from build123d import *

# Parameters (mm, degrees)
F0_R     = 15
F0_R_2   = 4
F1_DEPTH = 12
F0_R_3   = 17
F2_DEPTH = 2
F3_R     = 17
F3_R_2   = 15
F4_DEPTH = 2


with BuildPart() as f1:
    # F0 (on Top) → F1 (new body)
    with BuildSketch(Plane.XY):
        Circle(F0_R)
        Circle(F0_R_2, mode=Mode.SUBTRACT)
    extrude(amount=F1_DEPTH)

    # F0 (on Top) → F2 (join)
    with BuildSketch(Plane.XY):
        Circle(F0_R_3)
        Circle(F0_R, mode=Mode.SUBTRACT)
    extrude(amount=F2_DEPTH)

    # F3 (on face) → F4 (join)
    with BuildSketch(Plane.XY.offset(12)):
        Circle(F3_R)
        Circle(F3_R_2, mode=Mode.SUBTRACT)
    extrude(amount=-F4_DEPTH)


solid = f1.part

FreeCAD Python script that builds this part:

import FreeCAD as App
import Part
import Sketcher

V = App.Vector
Q = App.Units.Quantity

doc = App.newDocument("Part")
params = doc.addObject("Spreadsheet::Sheet", "Params")
for row, (alias, value) in enumerate([
    ("sketch1_diameter", "30 mm"),
    ("sketch1_diameter2", "8 mm"),
    ("pad1_length", "12 mm"),
    ("sketch2_diameter", "34 mm"),
    ("sketch2_diameter2", "30 mm"),
    ("pad2_length", "2 mm"),
    ("sketch3_diameter", "34 mm"),
    ("sketch3_diameter2", "30 mm"),
    ("pad3_length", "2 mm"),
], start=1):
    params.set(f"A{row}", alias)
    params.set(f"B{row}", "=" + value)
    params.setAlias(f"B{row}", alias)

body = doc.addObject("PartDesign::Body", "Body")

# Sketch on XY plane
sketch1 = body.newObject("Sketcher::SketchObject", "Sketch")
sketch1.AttachmentSupport = (doc.getObject("XY_Plane"), [""])
sketch1.MapMode = "FlatFace"
sketch1.addGeometry([
    Part.Circle(V(0, 0, 0), V(0, 0, 1), 15),
    Part.Circle(V(0, 0, 0), V(0, 0, 1), 4),
], False)
sketch1.addConstraint([
    Sketcher.Constraint("Coincident", 0, 3, -1, 1),
    Sketcher.Constraint("Coincident", 1, 3, -1, 1),
    Sketcher.Constraint("Diameter", 0, Q("30 mm")),
    Sketcher.Constraint("Diameter", 1, Q("8 mm")),
])
sketch1.setExpression("Constraints[2]", "Params.sketch1_diameter")
sketch1.setExpression("Constraints[3]", "Params.sketch1_diameter2")
pad1 = body.newObject("PartDesign::Pad", "Pad")
pad1.Profile = sketch1
pad1.setExpression("Length", "Params.pad1_length")

# Sketch on XY plane
sketch2 = body.newObject("Sketcher::SketchObject", "Sketch001")
sketch2.AttachmentSupport = (doc.getObject("XY_Plane"), [""])
sketch2.MapMode = "FlatFace"
sketch2.addGeometry([
    Part.Circle(V(0, 0, 0), V(0, 0, 1), 17),
    Part.Circle(V(0, 0, 0), V(0, 0, 1), 15),
], False)
sketch2.addConstraint([
    Sketcher.Constraint("Coincident", 0, 3, -1, 1),
    Sketcher.Constraint("Coincident", 1, 3, -1, 1),
    Sketcher.Constraint("Diameter", 0, Q("34 mm")),
    Sketcher.Constraint("Diameter", 1, Q("30 mm")),
])
sketch2.setExpression("Constraints[2]", "Params.sketch2_diameter")
sketch2.setExpression("Constraints[3]", "Params.sketch2_diameter2")
pad2 = body.newObject("PartDesign::Pad", "Pad001")
pad2.Profile = sketch2
pad2.setExpression("Length", "Params.pad2_length")

# Sketch on XY plane
sketch3 = body.newObject("Sketcher::SketchObject", "Sketch002")
sketch3.AttachmentSupport = (doc.getObject("XY_Plane"), [""])
sketch3.MapMode = "FlatFace"
sketch3.AttachmentOffset = App.Placement(V(0, 0, 12), App.Rotation())
sketch3.addGeometry([
    Part.Circle(V(0, 0, 0), V(0, 0, 1), 17),
    Part.Circle(V(0, 0, 0), V(0, 0, 1), 15),
], False)
sketch3.addConstraint([
    Sketcher.Constraint("Coincident", 0, 3, -1, 1),
    Sketcher.Constraint("Coincident", 1, 3, -1, 1),
    Sketcher.Constraint("Diameter", 0, Q("34 mm")),
    Sketcher.Constraint("Diameter", 1, Q("30 mm")),
])
sketch3.setExpression("Constraints[2]", "Params.sketch3_diameter")
sketch3.setExpression("Constraints[3]", "Params.sketch3_diameter2")
pad3 = body.newObject("PartDesign::Pad", "Pad002")
pad3.Profile = sketch3
pad3.setExpression("Length", "Params.pad3_length")
pad3.Reversed = True

doc.recompute()
